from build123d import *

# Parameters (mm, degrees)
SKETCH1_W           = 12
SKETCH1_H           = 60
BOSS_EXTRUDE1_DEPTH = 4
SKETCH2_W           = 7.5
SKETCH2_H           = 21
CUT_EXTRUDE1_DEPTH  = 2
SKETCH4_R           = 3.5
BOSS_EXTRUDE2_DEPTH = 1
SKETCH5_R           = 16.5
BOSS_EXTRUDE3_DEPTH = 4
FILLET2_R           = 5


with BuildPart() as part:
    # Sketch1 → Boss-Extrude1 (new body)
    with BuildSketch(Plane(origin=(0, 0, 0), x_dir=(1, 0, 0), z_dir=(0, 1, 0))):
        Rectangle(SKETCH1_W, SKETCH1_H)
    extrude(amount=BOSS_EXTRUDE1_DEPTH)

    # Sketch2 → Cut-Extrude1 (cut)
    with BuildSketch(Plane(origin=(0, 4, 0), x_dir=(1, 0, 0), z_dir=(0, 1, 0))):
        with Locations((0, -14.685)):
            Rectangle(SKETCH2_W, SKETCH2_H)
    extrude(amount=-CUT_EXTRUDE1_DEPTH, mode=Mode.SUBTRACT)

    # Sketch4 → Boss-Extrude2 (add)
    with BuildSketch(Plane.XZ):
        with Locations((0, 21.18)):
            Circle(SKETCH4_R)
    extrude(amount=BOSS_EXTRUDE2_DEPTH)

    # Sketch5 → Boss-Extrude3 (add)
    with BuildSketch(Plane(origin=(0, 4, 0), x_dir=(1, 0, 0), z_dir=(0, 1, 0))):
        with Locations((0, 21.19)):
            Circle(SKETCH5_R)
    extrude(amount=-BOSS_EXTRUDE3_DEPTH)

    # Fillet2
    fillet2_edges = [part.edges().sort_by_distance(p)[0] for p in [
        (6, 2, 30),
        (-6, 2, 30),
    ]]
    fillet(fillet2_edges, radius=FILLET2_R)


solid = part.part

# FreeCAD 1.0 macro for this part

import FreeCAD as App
import Part
import Sketcher

V = App.Vector
Q = App.Units.Quantity


def edges_at(feature, points):
    """Names of the edges that pass closest to the given points."""
    edges = feature.Shape.Edges
    near = lambda p: min(range(len(edges)), key=lambda i: edges[i].distToShape(Part.Vertex(*p))[0])
    return sorted({f"Edge{near(p) + 1}" for p in points})


def add_polygon(sketch, points):
    """Adds a closed chain of lines whose ends are joined by coincident constraints."""
    first, n = sketch.GeometryCount, len(points)
    for a, b in zip(points, points[1:] + points[:1]):
        sketch.addGeometry(Part.LineSegment(App.Vector(*a, 0), App.Vector(*b, 0)), False)
    for i in range(n):
        sketch.addConstraint(Sketcher.Constraint("Coincident", first + i, 2, first + (i + 1) % n, 1))

doc = App.newDocument("Part")
body = doc.addObject("PartDesign::Body", "Body")

# Sketch on XZ plane
sketch1 = doc.addObject("Sketcher::SketchObject", "Sketch")
body.addObject(sketch1)
sketch1.AttachmentSupport = (doc.XZ_Plane, [""])
sketch1.MapMode = "FlatFace"
add_polygon(sketch1, [(-6, -30), (-6, 30), (6, 30), (6, -30)])  # lines 0-3
sketch1.addConstraint([
    Sketcher.Constraint("Vertical", 0),
    Sketcher.Constraint("Horizontal", 1),
    Sketcher.Constraint("Vertical", 2),
    Sketcher.Constraint("Horizontal", 3),
    Sketcher.Constraint("Symmetric", 0, 2, 2, 2, -1, 1),
    Sketcher.Constraint("DistanceX", 1, 1, 1, 2, Q("12 mm")),
    Sketcher.Constraint("DistanceY", 0, 1, 0, 2, Q("60 mm")),
])
pad1 = doc.addObject("PartDesign::Pad", "Pad")
body.addObject(pad1)
pad1.Profile = sketch1
pad1.Length = 4
pad1.Reversed = True

# Sketch on XZ plane
sketch2 = doc.addObject("Sketcher::SketchObject", "Sketch001")
body.addObject(sketch2)
sketch2.AttachmentSupport = (doc.XZ_Plane, [""])
sketch2.MapMode = "FlatFace"
sketch2.AttachmentOffset = App.Placement(V(0, 0, -4), App.Rotation())
add_polygon(sketch2, [(-3.75, 4.185), (-3.75, 25.185), (3.75, 25.185), (3.75, 4.185)])  # lines 0-3
sketch2.addConstraint([
    Sketcher.Constraint("Vertical", 0),
    Sketcher.Constraint("Horizontal", 1),
    Sketcher.Constraint("Vertical", 2),
    Sketcher.Constraint("Horizontal", 3),
    Sketcher.Constraint("DistanceY", 0, 1, 0, 2, Q("21 mm")),
    Sketcher.Constraint("DistanceX", 1, 1, 1, 2, Q("7.5 mm")),
    Sketcher.Constraint("DistanceX", 0, 2, -1, 1, Q("3.75 mm")),
    Sketcher.Constraint("DistanceY", -1, 1, 0, 2, Q("25.185 mm")),
])
pocket1 = doc.addObject("PartDesign::Pocket", "Pocket")
body.addObject(pocket1)
pocket1.Profile = sketch2
pocket1.Length = 2
pocket1.Reversed = True

# Sketch on XZ plane
sketch3 = doc.addObject("Sketcher::SketchObject", "Sketch002")
body.addObject(sketch3)
sketch3.AttachmentSupport = (doc.XZ_Plane, [""])
sketch3.MapMode = "FlatFace"
sketch3.addGeometry(Part.Circle(V(0, 21.18, 0), V(0, 0, 1), 3.5), False)
sketch3.addConstraint([
    Sketcher.Constraint("PointOnObject", 0, 3, -2),
    Sketcher.Constraint("Diameter", 0, Q("7 mm")),
    Sketcher.Constraint("DistanceY", -1, 1, 0, 3, Q("21.18 mm")),
])
pad2 = doc.addObject("PartDesign::Pad", "Pad001")
body.addObject(pad2)
pad2.Profile = sketch3
pad2.Length = 1

# Sketch on XZ plane
sketch4 = doc.addObject("Sketcher::SketchObject", "Sketch003")
body.addObject(sketch4)
sketch4.AttachmentSupport = (doc.XZ_Plane, [""])
sketch4.MapMode = "FlatFace"
sketch4.AttachmentOffset = App.Placement(V(0, 0, -4), App.Rotation())
sketch4.addGeometry(Part.Circle(V(0, -21.19, 0), V(0, 0, 1), 16.5), False)
sketch4.addConstraint([
    Sketcher.Constraint("PointOnObject", 0, 3, -2),
    Sketcher.Constraint("Diameter", 0, Q("33 mm")),
    Sketcher.Constraint("DistanceY", 0, 3, -1, 1, Q("21.19 mm")),
])
pad3 = doc.addObject("PartDesign::Pad", "Pad002")
body.addObject(pad3)
pad3.Profile = sketch4
pad3.Length = 4
doc.recompute()

fillet = doc.addObject("PartDesign::Fillet", "Fillet")
body.addObject(fillet)
fillet.Base = (pad3, edges_at(pad3, [(6, 2, 30), (-6, 2, 30)]))
fillet.Radius = 5

doc.recompute()
